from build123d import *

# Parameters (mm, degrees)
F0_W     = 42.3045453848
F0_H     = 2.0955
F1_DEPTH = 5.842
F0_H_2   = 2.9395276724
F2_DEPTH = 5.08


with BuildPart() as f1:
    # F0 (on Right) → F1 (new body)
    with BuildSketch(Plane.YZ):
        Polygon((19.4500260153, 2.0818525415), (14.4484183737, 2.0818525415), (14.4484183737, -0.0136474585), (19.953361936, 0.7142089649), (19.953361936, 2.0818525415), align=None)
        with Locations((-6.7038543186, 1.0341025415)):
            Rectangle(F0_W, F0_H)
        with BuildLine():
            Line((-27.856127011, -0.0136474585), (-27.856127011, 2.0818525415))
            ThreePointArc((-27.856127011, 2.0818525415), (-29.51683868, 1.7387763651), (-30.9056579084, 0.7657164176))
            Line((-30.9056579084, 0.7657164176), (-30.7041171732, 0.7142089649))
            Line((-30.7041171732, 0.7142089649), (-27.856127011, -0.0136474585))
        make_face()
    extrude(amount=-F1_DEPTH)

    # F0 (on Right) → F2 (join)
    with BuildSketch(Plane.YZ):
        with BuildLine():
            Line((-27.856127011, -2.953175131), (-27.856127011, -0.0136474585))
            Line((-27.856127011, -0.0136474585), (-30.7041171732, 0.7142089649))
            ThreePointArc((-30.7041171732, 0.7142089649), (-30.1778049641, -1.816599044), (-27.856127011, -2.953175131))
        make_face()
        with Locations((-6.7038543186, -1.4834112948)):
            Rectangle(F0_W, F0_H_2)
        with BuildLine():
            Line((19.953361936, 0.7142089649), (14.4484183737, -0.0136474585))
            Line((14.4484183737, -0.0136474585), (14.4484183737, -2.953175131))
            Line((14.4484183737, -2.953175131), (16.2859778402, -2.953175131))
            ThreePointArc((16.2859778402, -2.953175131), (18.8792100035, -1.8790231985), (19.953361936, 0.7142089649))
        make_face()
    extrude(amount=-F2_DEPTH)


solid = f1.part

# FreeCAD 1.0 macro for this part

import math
import FreeCAD as App
import Part
import Sketcher
Q = App.Units.Quantity

doc = App.newDocument("Part")
body = doc.addObject("PartDesign::Body", "Body")

# Sketch on YZ plane
sketch1 = body.newObject("Sketcher::SketchObject", "Sketch")
sketch1.AttachmentSupport = (doc.getObject("YZ_Plane"), [""])
sketch1.MapMode = "FlatFace"
sketch1.addGeometry(Part.LineSegment(App.Vector(14.448418, -0.013647, 0), App.Vector(19.953362, 0.714209, 0)), False)
sketch1.addGeometry(Part.LineSegment(App.Vector(19.953362, 0.714209, 0), App.Vector(19.953362, 2.081853, 0)), False)
sketch1.addGeometry(Part.LineSegment(App.Vector(19.953362, 2.081853, 0), App.Vector(-27.856127, 2.081853, 0)), False)
sketch1.addGeometry(Part.ArcOfCircle(Part.Circle(App.Vector(-27.856127, -2.109147, 0), App.Vector(0, 0, 1), 4.191), math.radians(90), math.radians(136.688744)), False)
sketch1.addGeometry(Part.LineSegment(App.Vector(-30.905658, 0.765716, 0), App.Vector(-30.704117, 0.714209, 0)), False)
sketch1.addGeometry(Part.LineSegment(App.Vector(-30.704117, 0.714209, 0), App.Vector(-27.856127, -0.013647, 0)), False)
sketch1.addGeometry(Part.LineSegment(App.Vector(-27.856127, -0.013647, 0), App.Vector(14.448418, -0.013647, 0)), False)
sketch1.addConstraint(Sketcher.Constraint("Coincident", 0, 2, 1, 1))
sketch1.addConstraint(Sketcher.Constraint("Coincident", 1, 2, 2, 1))
sketch1.addConstraint(Sketcher.Constraint("Tangent", 2, 2, 3, 1))
sketch1.addConstraint(Sketcher.Constraint("Coincident", 3, 2, 4, 1))
sketch1.addConstraint(Sketcher.Constraint("Coincident", 4, 2, 5, 1))
sketch1.addConstraint(Sketcher.Constraint("Coincident", 5, 2, 6, 1))
sketch1.addConstraint(Sketcher.Constraint("Coincident", 6, 2, 0, 1))
sketch1.addConstraint(Sketcher.Constraint("Vertical", 1))
sketch1.addConstraint(Sketcher.Constraint("Horizontal", 2))
sketch1.addConstraint(Sketcher.Constraint("Horizontal", 6))
sketch1.addConstraint(Sketcher.Constraint("Parallel", 4, 5))
sketch1.addConstraint(Sketcher.Constraint("Horizontal", 0, 2, 4, 2))
sketch1.addConstraint(Sketcher.Constraint("Vertical", 2, 2, 5, 2))
sketch1.addConstraint(Sketcher.Constraint("Radius", 3, Q("0.165 in")))
sketch1.addConstraint(Sketcher.Constraint("DistanceY", 3, 3, 5, 2, Q("0.0825 in")))
sketch1.addConstraint(Sketcher.Constraint("DistanceX", 2, 2, 2, 1, Q("47.809489 mm")))
sketch1.addConstraint(Sketcher.Constraint("Distance", 4, Q("0.208018 mm")))
sketch1.addConstraint(Sketcher.Constraint("DistanceX", 6, 1, 6, 2, Q("42.304545 mm")))
sketch1.addConstraint(Sketcher.Constraint("DistanceY", 1, 1, 1, 2, Q("1.367644 mm")))
sketch1.addConstraint(Sketcher.Constraint("DistanceX", -1, 1, 0, 2, Q("19.953362 mm")))
sketch1.addConstraint(Sketcher.Constraint("DistanceY", -1, 1, 0, 2, Q("0.714209 mm")))
pad1 = body.newObject("PartDesign::Pad", "Pad")
pad1.Profile = sketch1
pad1.Length = Q("0.23 in")
pad1.Reversed = True

# Sketch on YZ plane
sketch2 = body.newObject("Sketcher::SketchObject", "Sketch001")
sketch2.AttachmentSupport = (doc.getObject("YZ_Plane"), [""])
sketch2.MapMode = "FlatFace"
sketch2.addGeometry(Part.LineSegment(App.Vector(-27.856127, -0.013647, 0), App.Vector(-30.704117, 0.714209, 0)), False)
sketch2.addGeometry(Part.ArcOfCircle(Part.Circle(App.Vector(-27.856127, -0.013647, 0), App.Vector(0, 0, 1), 2.939528), math.radians(165.663871), math.radians(270)), False)
sketch2.addGeometry(Part.LineSegment(App.Vector(-27.856127, -2.953175, 0), App.Vector(16.285978, -2.953175, 0)), False)
sketch2.addGeometry(Part.ArcOfCircle(Part.Circle(App.Vector(16.285978, 0.714209, 0), App.Vector(0, 0, 1), 3.667384), math.radians(-90), math.radians(0)), False)
sketch2.addGeometry(Part.LineSegment(App.Vector(19.953362, 0.714209, 0), App.Vector(14.448418, -0.013647, 0)), False)
sketch2.addGeometry(Part.LineSegment(App.Vector(14.448418, -0.013647, 0), App.Vector(-27.856127, -0.013647, 0)), False)
sketch2.addConstraint(Sketcher.Constraint("Coincident", 0, 2, 1, 1))
sketch2.addConstraint(Sketcher.Constraint("Tangent", 1, 2, 2, 1))
sketch2.addConstraint(Sketcher.Constraint("Tangent", 2, 2, 3, 1))
sketch2.addConstraint(Sketcher.Constraint("Coincident", 3, 2, 4, 1))
sketch2.addConstraint(Sketcher.Constraint("Coincident", 4, 2, 5, 1))
sketch2.addConstraint(Sketcher.Constraint("Coincident", 5, 2, 0, 1))
sketch2.addConstraint(Sketcher.Constraint("Horizontal", 2))
sketch2.addConstraint(Sketcher.Constraint("Horizontal", 5))
sketch2.addConstraint(Sketcher.Constraint("Coincident", 5, 2, 1, 3))
sketch2.addConstraint(Sketcher.Constraint("Horizontal", 3, 3, 0, 2))
sketch2.addConstraint(Sketcher.Constraint("Horizontal", 0, 2, 3, 2))
sketch2.addConstraint(Sketcher.Constraint("Radius", 1, Q("2.939528 mm")))
sketch2.addConstraint(Sketcher.Constraint("Radius", 3, Q("3.667384 mm")))
sketch2.addConstraint(Sketcher.Constraint("DistanceX", 2, 1, 2, 2, Q("44.142105 mm")))
sketch2.addConstraint(Sketcher.Constraint("DistanceX", 5, 2, 5, 1, Q("42.304545 mm")))
sketch2.addConstraint(Sketcher.Constraint("DistanceY", -1, 1, 3, 3, Q("0.714209 mm")))
sketch2.addConstraint(Sketcher.Constraint("DistanceX", -1, 1, 3, 2, Q("19.953362 mm")))
pad2 = body.newObject("PartDesign::Pad", "Pad001")
pad2.Profile = sketch2
pad2.Length = Q("0.2 in")
pad2.Reversed = True

doc.recompute()
